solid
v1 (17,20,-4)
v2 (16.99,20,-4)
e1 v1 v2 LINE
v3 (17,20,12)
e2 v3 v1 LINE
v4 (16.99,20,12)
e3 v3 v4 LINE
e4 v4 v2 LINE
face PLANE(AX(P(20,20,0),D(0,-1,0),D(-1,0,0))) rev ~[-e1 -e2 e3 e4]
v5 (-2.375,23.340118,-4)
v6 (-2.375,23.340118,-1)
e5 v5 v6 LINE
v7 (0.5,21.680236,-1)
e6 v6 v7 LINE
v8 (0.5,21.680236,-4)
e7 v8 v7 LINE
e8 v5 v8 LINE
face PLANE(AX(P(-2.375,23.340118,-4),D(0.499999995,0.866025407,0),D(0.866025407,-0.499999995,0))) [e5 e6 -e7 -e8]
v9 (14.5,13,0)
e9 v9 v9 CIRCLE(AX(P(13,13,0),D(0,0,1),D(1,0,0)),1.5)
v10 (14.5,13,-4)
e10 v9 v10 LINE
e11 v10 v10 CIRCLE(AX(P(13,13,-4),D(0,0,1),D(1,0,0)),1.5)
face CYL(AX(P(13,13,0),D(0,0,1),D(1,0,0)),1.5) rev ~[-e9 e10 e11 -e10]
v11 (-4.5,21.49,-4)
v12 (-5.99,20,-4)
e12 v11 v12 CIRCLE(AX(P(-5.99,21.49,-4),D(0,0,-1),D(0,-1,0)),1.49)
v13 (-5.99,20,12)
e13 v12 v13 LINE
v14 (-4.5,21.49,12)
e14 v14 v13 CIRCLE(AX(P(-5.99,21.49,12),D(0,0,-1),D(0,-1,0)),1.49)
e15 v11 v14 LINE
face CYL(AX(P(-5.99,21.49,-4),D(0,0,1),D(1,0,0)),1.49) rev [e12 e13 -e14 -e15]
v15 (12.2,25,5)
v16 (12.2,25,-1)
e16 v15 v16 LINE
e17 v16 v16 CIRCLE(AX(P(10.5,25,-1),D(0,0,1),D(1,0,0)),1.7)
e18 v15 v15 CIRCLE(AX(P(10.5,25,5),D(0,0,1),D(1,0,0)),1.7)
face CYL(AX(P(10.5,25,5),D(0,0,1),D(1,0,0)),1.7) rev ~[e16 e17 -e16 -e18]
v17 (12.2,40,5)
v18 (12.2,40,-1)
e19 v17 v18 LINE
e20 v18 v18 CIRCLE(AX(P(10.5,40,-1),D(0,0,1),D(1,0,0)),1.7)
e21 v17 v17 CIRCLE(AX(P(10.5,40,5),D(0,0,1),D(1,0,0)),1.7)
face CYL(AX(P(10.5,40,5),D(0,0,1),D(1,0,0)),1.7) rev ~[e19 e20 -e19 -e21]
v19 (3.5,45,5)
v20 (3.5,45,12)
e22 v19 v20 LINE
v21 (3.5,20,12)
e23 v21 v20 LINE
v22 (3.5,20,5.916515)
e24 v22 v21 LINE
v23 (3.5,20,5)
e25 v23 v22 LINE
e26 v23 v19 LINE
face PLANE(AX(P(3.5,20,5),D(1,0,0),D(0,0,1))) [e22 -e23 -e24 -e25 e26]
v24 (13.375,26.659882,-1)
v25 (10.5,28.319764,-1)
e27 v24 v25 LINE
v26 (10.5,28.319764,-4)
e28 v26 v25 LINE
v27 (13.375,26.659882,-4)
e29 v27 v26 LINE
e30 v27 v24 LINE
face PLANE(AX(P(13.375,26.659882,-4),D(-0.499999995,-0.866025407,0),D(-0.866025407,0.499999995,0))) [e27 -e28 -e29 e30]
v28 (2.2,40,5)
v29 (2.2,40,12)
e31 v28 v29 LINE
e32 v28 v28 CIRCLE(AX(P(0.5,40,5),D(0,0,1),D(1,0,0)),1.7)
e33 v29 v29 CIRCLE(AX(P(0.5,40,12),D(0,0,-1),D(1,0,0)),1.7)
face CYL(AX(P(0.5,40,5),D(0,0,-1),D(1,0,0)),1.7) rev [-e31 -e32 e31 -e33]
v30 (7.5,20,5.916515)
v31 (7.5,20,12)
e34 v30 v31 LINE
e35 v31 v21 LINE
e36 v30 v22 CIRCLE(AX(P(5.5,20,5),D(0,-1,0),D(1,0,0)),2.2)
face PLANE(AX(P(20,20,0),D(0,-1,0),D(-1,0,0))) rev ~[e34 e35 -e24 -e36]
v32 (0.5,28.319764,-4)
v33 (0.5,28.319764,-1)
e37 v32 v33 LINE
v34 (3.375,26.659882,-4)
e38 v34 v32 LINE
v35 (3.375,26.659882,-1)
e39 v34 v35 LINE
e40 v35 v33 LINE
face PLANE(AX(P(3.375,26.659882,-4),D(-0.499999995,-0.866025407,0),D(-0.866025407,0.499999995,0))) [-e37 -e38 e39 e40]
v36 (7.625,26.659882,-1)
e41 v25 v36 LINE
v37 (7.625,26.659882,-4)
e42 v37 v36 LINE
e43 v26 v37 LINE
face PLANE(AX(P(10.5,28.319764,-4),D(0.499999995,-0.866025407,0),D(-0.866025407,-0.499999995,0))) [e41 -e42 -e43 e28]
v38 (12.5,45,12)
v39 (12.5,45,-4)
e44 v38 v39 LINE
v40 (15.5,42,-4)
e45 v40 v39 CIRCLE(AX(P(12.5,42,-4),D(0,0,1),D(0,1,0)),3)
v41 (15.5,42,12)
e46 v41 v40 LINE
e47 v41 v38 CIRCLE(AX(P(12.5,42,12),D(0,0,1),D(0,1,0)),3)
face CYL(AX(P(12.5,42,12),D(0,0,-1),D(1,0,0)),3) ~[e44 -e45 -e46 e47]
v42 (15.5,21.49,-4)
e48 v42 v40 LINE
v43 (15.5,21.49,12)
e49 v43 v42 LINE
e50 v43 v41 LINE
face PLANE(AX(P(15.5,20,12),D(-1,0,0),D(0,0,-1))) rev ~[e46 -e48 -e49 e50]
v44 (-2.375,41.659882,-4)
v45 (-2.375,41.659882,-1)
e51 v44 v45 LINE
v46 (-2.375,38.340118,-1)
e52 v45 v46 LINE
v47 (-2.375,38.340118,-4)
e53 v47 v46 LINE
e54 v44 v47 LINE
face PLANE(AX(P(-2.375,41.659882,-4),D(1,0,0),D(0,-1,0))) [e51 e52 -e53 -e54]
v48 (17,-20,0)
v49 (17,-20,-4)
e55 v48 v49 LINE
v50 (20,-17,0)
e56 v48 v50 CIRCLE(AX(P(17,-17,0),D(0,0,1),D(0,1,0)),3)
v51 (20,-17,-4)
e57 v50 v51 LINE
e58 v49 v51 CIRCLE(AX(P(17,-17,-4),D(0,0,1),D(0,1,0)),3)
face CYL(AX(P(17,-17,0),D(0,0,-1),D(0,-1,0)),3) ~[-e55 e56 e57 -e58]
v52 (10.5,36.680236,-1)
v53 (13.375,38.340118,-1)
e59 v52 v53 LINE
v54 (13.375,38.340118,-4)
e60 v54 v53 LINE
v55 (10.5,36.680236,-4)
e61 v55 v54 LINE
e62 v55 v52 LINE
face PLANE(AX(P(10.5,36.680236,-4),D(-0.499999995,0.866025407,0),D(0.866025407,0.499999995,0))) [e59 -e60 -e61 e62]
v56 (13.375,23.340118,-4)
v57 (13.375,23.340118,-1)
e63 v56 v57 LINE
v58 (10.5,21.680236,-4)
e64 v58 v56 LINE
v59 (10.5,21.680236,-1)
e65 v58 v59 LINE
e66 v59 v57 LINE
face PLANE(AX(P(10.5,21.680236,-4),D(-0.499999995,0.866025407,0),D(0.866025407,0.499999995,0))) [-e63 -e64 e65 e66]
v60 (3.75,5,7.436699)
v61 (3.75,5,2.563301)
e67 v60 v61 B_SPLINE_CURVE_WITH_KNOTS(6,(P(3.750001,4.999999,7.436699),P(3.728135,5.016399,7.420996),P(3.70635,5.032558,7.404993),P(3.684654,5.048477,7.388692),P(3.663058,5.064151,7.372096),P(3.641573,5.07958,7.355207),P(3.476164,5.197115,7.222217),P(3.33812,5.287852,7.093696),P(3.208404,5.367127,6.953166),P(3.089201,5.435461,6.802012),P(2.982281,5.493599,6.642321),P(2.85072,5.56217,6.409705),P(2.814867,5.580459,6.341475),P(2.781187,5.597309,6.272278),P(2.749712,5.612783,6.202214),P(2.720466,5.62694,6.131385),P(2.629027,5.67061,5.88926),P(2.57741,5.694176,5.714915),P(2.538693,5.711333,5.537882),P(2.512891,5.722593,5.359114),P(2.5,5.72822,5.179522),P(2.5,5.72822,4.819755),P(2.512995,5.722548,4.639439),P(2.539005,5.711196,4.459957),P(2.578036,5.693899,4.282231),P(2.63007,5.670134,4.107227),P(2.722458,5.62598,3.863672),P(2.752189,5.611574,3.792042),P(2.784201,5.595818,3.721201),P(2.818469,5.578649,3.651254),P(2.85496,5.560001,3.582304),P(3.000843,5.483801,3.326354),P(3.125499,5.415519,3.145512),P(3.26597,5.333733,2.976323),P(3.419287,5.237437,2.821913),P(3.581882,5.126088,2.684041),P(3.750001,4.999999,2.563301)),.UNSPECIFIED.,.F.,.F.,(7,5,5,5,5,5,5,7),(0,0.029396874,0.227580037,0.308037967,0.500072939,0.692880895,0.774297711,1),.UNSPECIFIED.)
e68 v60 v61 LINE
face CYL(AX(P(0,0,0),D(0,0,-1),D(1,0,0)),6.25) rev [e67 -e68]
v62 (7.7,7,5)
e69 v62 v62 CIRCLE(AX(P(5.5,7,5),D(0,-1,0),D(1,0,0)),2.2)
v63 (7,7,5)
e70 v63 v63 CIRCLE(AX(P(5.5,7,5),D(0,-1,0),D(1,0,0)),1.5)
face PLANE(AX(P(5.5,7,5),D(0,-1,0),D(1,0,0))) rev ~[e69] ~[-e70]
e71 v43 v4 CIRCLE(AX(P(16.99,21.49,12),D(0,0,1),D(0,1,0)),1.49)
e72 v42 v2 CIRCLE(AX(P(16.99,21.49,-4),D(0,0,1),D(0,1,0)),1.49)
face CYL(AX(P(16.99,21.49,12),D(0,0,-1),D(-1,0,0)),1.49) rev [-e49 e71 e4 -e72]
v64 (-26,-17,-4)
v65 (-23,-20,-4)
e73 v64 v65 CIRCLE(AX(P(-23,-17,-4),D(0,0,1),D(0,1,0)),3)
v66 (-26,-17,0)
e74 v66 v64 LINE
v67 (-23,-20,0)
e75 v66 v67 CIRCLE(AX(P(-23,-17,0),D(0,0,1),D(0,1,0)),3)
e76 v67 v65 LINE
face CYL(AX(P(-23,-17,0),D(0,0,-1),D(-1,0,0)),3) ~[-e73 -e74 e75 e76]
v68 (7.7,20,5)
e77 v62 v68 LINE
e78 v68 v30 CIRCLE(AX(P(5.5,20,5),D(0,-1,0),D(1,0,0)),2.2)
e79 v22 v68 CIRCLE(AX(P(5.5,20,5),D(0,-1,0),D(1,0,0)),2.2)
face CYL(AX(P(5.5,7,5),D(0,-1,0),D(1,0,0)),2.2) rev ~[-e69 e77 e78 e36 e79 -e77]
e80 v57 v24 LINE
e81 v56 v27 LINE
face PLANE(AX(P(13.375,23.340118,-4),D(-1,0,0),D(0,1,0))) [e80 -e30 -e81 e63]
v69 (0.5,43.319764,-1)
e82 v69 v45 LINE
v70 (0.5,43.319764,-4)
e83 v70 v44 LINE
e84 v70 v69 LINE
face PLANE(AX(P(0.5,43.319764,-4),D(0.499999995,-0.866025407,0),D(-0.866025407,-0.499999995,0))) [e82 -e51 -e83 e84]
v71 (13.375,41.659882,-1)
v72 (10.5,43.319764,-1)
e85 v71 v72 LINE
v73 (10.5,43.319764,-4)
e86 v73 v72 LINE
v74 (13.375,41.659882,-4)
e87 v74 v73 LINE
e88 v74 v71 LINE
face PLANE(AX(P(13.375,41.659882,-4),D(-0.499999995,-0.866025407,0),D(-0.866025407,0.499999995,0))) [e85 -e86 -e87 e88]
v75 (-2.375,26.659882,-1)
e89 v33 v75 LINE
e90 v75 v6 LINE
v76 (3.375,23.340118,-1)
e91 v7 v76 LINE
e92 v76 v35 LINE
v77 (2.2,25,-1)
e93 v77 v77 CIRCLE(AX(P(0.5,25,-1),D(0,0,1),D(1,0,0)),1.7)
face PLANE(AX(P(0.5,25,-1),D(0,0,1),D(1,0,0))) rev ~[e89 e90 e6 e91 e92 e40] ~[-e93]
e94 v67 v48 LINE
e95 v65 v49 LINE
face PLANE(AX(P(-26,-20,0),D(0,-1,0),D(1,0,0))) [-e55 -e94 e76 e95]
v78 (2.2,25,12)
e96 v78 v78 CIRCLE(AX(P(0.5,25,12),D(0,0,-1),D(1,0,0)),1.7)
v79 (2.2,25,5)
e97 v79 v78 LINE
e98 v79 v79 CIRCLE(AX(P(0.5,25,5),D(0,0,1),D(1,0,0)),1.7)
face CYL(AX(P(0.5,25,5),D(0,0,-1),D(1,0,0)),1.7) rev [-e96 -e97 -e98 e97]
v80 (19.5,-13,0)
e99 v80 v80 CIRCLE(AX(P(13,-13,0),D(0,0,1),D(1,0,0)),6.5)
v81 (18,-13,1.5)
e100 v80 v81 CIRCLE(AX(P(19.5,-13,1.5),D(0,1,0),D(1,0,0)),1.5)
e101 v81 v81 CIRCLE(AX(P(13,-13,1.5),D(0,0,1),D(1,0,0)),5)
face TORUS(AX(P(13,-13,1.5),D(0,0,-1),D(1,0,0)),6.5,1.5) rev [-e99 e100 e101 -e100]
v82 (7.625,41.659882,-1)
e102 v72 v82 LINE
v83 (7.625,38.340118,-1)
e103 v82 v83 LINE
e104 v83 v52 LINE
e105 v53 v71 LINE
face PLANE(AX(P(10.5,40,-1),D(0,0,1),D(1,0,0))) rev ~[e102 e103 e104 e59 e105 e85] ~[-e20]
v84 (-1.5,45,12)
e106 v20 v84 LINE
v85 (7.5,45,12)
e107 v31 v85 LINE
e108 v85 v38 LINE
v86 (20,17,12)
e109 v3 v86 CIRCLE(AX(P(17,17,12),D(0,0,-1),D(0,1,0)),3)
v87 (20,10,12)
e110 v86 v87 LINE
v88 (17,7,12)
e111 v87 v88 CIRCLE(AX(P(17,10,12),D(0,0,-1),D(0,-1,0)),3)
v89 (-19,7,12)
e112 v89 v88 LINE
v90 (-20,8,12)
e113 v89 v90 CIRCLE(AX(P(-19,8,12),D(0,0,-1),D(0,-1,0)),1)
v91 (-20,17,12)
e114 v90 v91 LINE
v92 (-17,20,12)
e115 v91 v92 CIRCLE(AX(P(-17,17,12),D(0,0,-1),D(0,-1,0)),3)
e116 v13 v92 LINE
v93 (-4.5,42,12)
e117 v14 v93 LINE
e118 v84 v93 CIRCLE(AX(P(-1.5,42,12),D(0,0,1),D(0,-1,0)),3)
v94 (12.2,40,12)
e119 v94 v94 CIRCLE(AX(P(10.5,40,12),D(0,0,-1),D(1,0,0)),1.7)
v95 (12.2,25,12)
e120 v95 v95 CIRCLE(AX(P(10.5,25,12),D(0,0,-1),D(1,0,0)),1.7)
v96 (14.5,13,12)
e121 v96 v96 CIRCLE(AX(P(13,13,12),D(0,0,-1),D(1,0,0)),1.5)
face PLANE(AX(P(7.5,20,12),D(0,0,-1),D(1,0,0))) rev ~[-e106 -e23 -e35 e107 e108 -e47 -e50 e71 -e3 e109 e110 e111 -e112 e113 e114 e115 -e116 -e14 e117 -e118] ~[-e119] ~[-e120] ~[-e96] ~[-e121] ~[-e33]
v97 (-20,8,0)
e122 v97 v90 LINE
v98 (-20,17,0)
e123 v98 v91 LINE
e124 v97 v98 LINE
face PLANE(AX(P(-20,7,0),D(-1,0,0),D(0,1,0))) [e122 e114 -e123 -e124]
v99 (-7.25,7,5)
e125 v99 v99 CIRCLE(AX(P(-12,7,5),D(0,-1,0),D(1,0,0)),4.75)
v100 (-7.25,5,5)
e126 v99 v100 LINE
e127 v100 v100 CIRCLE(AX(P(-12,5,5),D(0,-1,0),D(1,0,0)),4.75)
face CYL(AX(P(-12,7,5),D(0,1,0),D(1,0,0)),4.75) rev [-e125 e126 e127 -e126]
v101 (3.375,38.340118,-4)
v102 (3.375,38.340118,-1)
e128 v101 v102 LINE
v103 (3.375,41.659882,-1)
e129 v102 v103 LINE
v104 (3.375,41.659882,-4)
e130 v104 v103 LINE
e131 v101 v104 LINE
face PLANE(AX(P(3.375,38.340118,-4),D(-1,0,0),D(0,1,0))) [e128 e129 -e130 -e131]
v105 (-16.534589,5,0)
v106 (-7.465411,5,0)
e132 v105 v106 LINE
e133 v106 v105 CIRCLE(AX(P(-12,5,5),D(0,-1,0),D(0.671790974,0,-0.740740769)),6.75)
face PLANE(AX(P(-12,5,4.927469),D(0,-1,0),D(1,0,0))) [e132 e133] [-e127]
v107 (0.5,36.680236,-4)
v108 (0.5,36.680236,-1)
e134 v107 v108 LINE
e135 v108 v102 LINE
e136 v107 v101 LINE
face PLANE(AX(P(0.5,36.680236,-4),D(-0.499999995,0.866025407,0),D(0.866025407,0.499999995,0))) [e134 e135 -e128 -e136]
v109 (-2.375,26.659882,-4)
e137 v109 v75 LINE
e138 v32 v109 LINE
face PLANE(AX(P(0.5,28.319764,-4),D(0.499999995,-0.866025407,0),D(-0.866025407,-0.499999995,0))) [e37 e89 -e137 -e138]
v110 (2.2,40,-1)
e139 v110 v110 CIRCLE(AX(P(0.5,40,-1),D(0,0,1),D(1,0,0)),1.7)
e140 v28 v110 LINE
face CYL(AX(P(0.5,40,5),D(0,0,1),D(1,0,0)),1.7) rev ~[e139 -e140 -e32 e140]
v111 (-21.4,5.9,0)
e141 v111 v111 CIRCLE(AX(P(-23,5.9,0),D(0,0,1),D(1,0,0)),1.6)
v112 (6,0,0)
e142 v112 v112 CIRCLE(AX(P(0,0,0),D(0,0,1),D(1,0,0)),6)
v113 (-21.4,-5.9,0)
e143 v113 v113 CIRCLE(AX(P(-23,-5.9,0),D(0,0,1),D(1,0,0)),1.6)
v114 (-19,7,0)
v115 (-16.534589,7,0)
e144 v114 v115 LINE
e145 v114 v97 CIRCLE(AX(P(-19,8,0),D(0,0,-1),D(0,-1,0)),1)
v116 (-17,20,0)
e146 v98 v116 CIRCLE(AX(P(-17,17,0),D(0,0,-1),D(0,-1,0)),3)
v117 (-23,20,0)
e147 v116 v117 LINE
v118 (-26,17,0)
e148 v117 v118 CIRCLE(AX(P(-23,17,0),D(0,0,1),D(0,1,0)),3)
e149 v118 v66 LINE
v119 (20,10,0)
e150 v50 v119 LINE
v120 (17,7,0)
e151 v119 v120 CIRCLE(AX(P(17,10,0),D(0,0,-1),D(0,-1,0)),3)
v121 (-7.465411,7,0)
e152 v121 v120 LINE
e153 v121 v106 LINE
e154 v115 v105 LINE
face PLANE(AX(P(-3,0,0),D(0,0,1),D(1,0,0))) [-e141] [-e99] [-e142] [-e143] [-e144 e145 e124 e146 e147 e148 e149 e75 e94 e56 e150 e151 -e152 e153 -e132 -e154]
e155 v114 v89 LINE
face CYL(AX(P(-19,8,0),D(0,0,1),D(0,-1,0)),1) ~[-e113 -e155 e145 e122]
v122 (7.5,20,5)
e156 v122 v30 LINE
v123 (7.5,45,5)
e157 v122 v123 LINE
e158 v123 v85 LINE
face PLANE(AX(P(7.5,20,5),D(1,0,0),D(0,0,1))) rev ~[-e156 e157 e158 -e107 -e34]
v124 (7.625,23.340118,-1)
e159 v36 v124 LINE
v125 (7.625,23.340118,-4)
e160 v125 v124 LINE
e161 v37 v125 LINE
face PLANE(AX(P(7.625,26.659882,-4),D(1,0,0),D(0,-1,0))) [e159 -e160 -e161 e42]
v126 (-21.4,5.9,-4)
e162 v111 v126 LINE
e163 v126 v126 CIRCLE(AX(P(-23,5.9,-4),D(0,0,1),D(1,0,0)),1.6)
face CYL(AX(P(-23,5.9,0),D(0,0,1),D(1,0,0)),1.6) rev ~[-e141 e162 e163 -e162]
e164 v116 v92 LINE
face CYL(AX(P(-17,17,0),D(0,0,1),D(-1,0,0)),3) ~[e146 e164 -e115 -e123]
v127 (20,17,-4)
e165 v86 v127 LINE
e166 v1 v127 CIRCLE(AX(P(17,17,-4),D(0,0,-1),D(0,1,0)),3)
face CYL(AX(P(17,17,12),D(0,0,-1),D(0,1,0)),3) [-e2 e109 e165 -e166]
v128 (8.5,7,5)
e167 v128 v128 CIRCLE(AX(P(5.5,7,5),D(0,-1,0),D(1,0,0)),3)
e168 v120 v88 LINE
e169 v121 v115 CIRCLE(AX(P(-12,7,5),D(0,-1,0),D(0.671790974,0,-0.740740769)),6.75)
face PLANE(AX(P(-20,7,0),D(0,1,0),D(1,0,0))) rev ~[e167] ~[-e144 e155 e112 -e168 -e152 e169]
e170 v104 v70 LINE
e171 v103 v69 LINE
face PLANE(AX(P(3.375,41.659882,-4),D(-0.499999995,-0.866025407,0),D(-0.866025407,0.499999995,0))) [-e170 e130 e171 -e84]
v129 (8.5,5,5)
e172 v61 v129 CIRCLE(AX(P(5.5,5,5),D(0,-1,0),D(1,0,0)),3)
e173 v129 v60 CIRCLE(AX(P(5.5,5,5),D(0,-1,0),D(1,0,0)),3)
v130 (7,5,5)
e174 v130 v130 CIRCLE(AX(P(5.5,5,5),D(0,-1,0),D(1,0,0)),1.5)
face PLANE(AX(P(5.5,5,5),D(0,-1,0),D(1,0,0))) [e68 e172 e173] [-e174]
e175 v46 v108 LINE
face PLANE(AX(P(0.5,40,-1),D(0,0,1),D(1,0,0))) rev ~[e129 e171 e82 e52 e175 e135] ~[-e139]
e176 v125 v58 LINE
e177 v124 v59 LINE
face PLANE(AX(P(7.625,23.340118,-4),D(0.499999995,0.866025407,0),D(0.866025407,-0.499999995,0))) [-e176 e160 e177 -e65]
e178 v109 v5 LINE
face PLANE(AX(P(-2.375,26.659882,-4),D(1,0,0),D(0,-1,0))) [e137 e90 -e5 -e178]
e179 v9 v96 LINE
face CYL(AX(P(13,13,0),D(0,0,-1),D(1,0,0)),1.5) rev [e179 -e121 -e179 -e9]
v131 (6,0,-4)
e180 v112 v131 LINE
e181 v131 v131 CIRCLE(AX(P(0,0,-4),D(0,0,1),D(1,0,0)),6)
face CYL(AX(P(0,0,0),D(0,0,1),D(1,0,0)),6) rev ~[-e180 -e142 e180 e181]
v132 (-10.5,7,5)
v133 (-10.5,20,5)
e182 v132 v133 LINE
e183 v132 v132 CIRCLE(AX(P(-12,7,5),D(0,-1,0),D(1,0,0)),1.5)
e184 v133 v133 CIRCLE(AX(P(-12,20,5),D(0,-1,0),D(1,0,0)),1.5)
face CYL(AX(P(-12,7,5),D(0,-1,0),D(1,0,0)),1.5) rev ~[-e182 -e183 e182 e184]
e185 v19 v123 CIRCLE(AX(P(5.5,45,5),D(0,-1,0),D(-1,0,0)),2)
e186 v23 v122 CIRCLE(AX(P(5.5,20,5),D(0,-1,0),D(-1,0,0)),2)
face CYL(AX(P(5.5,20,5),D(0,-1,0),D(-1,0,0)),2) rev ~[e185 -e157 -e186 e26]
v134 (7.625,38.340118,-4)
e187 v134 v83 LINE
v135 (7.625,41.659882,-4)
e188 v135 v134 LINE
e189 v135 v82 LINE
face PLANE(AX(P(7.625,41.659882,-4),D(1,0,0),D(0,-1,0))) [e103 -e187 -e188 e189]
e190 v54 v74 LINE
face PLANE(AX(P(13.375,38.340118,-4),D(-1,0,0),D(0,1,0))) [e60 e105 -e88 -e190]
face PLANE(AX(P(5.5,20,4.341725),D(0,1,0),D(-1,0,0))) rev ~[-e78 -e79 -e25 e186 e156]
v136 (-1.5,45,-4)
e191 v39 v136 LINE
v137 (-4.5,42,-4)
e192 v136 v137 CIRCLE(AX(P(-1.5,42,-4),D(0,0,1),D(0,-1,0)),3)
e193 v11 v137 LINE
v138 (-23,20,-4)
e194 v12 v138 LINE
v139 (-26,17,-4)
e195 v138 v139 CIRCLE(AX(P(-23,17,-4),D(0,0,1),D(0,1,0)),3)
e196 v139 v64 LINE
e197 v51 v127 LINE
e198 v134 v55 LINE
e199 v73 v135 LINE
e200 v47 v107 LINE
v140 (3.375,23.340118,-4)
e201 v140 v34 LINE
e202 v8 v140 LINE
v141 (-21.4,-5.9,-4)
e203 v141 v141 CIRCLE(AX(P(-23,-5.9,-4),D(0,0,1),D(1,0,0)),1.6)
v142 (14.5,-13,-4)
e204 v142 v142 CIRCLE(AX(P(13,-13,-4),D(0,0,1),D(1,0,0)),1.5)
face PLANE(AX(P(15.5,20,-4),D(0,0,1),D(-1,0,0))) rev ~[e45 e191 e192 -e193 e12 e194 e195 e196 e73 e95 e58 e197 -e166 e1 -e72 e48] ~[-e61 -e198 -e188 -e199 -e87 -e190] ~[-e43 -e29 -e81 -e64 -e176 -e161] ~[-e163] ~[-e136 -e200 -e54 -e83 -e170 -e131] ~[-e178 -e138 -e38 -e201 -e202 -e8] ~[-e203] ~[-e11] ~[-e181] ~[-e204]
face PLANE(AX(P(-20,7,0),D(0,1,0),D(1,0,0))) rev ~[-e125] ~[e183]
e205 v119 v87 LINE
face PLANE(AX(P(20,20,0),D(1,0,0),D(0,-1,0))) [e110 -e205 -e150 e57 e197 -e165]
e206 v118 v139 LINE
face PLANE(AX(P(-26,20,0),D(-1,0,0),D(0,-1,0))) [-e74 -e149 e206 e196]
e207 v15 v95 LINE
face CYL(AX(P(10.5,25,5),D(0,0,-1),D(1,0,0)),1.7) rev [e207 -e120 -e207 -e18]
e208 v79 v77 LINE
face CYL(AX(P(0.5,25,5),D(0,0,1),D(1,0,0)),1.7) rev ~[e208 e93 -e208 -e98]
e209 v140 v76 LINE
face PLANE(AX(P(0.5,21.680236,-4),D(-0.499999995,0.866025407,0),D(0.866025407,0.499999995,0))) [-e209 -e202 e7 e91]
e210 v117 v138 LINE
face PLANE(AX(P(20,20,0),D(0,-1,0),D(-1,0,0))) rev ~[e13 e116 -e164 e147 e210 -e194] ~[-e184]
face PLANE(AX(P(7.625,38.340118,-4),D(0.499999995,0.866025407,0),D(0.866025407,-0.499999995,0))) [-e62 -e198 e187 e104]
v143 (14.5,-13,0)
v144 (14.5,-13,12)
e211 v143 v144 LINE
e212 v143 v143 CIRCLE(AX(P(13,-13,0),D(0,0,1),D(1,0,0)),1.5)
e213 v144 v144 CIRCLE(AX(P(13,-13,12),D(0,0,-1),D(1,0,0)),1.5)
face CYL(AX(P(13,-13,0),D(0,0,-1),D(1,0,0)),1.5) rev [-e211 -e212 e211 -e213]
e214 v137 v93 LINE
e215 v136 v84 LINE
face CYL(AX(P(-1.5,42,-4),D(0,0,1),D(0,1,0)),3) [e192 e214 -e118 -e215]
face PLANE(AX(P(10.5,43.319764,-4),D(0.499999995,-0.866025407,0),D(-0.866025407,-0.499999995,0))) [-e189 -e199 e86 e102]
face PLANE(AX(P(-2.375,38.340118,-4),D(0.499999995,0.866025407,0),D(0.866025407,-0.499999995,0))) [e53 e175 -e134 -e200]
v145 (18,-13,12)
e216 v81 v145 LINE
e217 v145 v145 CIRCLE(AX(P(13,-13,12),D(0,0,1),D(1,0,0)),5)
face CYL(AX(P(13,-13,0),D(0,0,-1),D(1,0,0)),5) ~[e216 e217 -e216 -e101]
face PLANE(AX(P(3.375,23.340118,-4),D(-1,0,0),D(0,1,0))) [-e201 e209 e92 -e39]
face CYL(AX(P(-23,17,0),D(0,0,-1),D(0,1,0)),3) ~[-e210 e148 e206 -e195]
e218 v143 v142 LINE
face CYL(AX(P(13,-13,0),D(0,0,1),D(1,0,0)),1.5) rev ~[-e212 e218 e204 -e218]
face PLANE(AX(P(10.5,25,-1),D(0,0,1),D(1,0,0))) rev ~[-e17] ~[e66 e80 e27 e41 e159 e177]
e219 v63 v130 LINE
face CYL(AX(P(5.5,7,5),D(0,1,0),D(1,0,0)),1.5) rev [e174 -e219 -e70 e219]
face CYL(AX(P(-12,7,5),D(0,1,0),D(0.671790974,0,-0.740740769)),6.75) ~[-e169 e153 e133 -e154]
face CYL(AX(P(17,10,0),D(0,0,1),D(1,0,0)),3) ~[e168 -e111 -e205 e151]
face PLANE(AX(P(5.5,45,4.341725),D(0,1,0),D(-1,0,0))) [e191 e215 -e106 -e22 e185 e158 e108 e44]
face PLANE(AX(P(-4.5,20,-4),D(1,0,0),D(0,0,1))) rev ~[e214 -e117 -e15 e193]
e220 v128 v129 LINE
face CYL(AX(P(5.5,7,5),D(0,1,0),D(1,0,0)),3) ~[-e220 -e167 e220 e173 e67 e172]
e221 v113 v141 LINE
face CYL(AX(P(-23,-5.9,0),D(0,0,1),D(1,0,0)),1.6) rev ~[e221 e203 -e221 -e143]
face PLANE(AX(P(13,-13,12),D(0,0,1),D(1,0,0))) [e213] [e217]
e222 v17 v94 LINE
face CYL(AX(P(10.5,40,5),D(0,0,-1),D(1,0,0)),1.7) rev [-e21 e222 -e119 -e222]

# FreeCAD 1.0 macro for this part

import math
import FreeCAD as App
import Part
import Sketcher
from FreeCAD import Vector
Q = App.Units.Quantity


def edges_at(feature, points):
    """Names of the edges that pass closest to the given points."""
    edges = feature.Shape.Edges
    near = lambda p: min(range(len(edges)), key=lambda i: edges[i].distToShape(Part.Vertex(*p))[0])
    return sorted({f"Edge{near(p) + 1}" for p in points})

doc = App.newDocument("Part")
body = doc.addObject("PartDesign::Body", "Body")

sketch1 = body.newObject("Sketcher::SketchObject", "Sketch")
sketch1.AttachmentSupport = (doc.getObject("XZ_Plane"), [""])
sketch1.MapMode = "FlatFace"
sketch1.addGeometry(Part.LineSegment(Vector(10, -9, 0), Vector(10, 7, 0)), False)
sketch1.addGeometry(Part.LineSegment(Vector(10, 7, 0), Vector(2, 7, 0)), False)
sketch1.addGeometry(Part.LineSegment(Vector(2, 7, 0), Vector(2, 0, 0)), False)
sketch1.addGeometry(Part.ArcOfCircle(Part.Circle(Vector(0, 0, 0), Vector(0, 0, 1), 2), math.radians(180), math.radians(360)), False)
sketch1.addGeometry(Part.LineSegment(Vector(-2, 0, 0), Vector(-2, 7, 0)), False)
sketch1.addGeometry(Part.LineSegment(Vector(-2, 7, 0), Vector(-10, 7, 0)), False)
sketch1.addGeometry(Part.LineSegment(Vector(-10, 7, 0), Vector(-10, -9, 0)), False)
sketch1.addGeometry(Part.LineSegment(Vector(-10, -9, 0), Vector(10, -9, 0)), False)
sketch1.addConstraint(Sketcher.Constraint("Coincident", 0, 2, 1, 1))
sketch1.addConstraint(Sketcher.Constraint("Coincident", 1, 2, 2, 1))
sketch1.addConstraint(Sketcher.Constraint("Tangent", 2, 2, 3, 2))
sketch1.addConstraint(Sketcher.Constraint("Tangent", 3, 1, 4, 1))
sketch1.addConstraint(Sketcher.Constraint("Coincident", 4, 2, 5, 1))
sketch1.addConstraint(Sketcher.Constraint("Coincident", 5, 2, 6, 1))
sketch1.addConstraint(Sketcher.Constraint("Coincident", 6, 2, 7, 1))
sketch1.addConstraint(Sketcher.Constraint("Coincident", 7, 2, 0, 1))
sketch1.addConstraint(Sketcher.Constraint("Vertical", 0))
sketch1.addConstraint(Sketcher.Constraint("Horizontal", 1))
sketch1.addConstraint(Sketcher.Constraint("Vertical", 2))
sketch1.addConstraint(Sketcher.Constraint("Vertical", 4))
sketch1.addConstraint(Sketcher.Constraint("Horizontal", 5))
sketch1.addConstraint(Sketcher.Constraint("Vertical", 6))
sketch1.addConstraint(Sketcher.Constraint("Horizontal", 7))
sketch1.addConstraint(Sketcher.Constraint("Coincident", 3, 3, -1, 1))
sketch1.addConstraint(Sketcher.Constraint("Symmetric", 0, 2, 5, 2, -2))
sketch1.addConstraint(Sketcher.Constraint("Radius", 3, 2.0))
sketch1.addConstraint(Sketcher.Constraint("DistanceX", 1, 2, 1, 1, 8.0))
sketch1.addConstraint(Sketcher.Constraint("DistanceY", 0, 1, 0, 2, 16.0))
sketch1.addConstraint(Sketcher.Constraint("DistanceY", 2, 2, 2, 1, 7.0))
pad1 = body.newObject("PartDesign::Pad", "Pad")
pad1.Profile = sketch1
pad1.Length = 25
pad1.Reversed = True

sketch2 = body.newObject("Sketcher::SketchObject", "Sketch001")
sketch2.AttachmentSupport = (doc.getObject("XY_Plane"), [""])
sketch2.MapMode = "FlatFace"
sketch2.addGeometry(Part.Circle(Vector(-5, 5, 0), Vector(0, 0, 1), 1.7), False)
sketch2.addGeometry(Part.Circle(Vector(5, 5, 0), Vector(0, 0, 1), 1.7), False)
sketch2.addGeometry(Part.Circle(Vector(-5, 20, 0), Vector(0, 0, 1), 1.7), False)
sketch2.addGeometry(Part.Circle(Vector(5, 20, 0), Vector(0, 0, 1), 1.7), False)
sketch2.addConstraint(Sketcher.Constraint("Equal", 0, 1))
sketch2.addConstraint(Sketcher.Constraint("Equal", 1, 2))
sketch2.addConstraint(Sketcher.Constraint("Equal", 2, 3))
sketch2.addConstraint(Sketcher.Constraint("Symmetric", 0, 3, 1, 3, -2))
sketch2.addConstraint(Sketcher.Constraint("Symmetric", 2, 3, 3, 3, -2))
sketch2.addConstraint(Sketcher.Constraint("Vertical", 0, 3, 2, 3))
sketch2.addConstraint(Sketcher.Constraint("Diameter", 0, 3.4))
sketch2.addConstraint(Sketcher.Constraint("DistanceX", 0, 3, -1, 1, 5.0))
sketch2.addConstraint(Sketcher.Constraint("DistanceY", -1, 1, 0, 3, 5.0))
sketch2.addConstraint(Sketcher.Constraint("DistanceY", -1, 1, 2, 3, 20.0))
pocket1 = body.newObject("PartDesign::Pocket", "Pocket")
pocket1.Profile = sketch2
pocket1.Type = "ThroughAll"
pocket1.Midplane = True

sketch3 = body.newObject("Sketcher::SketchObject", "Sketch002")
sketch3.AttachmentSupport = (doc.getObject("XY_Plane"), [""])
sketch3.MapMode = "FlatFace"
sketch3.AttachmentOffset = App.Placement(Vector(0, 0, -9), App.Rotation())
sketch3.addGeometry(Part.LineSegment(Vector(-2.1, 3.3, 0), Vector(-2.1, 6.7, 0)), False)
sketch3.addGeometry(Part.LineSegment(Vector(-2.1, 6.7, 0), Vector(-5, 8.3, 0)), False)
sketch3.addGeometry(Part.LineSegment(Vector(-5, 8.3, 0), Vector(-7.9, 6.7, 0)), False)
sketch3.addGeometry(Part.LineSegment(Vector(-7.9, 6.7, 0), Vector(-7.9, 3.3, 0)), False)
sketch3.addGeometry(Part.LineSegment(Vector(-7.9, 3.3, 0), Vector(-5, 1.7, 0)), False)
sketch3.addGeometry(Part.LineSegment(Vector(-5, 1.7, 0), Vector(-2.1, 3.3, 0)), False)
sketch3.addGeometry(Part.LineSegment(Vector(7.9, 3.3, 0), Vector(7.9, 6.7, 0)), False)
sketch3.addGeometry(Part.LineSegment(Vector(7.9, 6.7, 0), Vector(5, 8.3, 0)), False)
sketch3.addGeometry(Part.LineSegment(Vector(5, 8.3, 0), Vector(2.1, 6.7, 0)), False)
sketch3.addGeometry(Part.LineSegment(Vector(2.1, 6.7, 0), Vector(2.1, 3.3, 0)), False)
sketch3.addGeometry(Part.LineSegment(Vector(2.1, 3.3, 0), Vector(5, 1.7, 0)), False)
sketch3.addGeometry(Part.LineSegment(Vector(5, 1.7, 0), Vector(7.9, 3.3, 0)), False)
sketch3.addGeometry(Part.LineSegment(Vector(-2.1, 18.3, 0), Vector(-2.1, 21.7, 0)), False)
sketch3.addGeometry(Part.LineSegment(Vector(-2.1, 21.7, 0), Vector(-5, 23.3, 0)), False)
sketch3.addGeometry(Part.LineSegment(Vector(-5, 23.3, 0), Vector(-7.9, 21.7, 0)), False)
sketch3.addGeometry(Part.LineSegment(Vector(-7.9, 21.7, 0), Vector(-7.9, 18.3, 0)), False)
sketch3.addGeometry(Part.LineSegment(Vector(-7.9, 18.3, 0), Vector(-5, 16.7, 0)), False)
sketch3.addGeometry(Part.LineSegment(Vector(-5, 16.7, 0), Vector(-2.1, 18.3, 0)), False)
sketch3.addGeometry(Part.LineSegment(Vector(7.9, 18.3, 0), Vector(7.9, 21.7, 0)), False)
sketch3.addGeometry(Part.LineSegment(Vector(7.9, 21.7, 0), Vector(5, 23.3, 0)), False)
sketch3.addGeometry(Part.LineSegment(Vector(5, 23.3, 0), Vector(2.1, 21.7, 0)), False)
sketch3.addGeometry(Part.LineSegment(Vector(2.1, 21.7, 0), Vector(2.1, 18.3, 0)), False)
sketch3.addGeometry(Part.LineSegment(Vector(2.1, 18.3, 0), Vector(5, 16.7, 0)), False)
sketch3.addGeometry(Part.LineSegment(Vector(5, 16.7, 0), Vector(7.9, 18.3, 0)), False)
sketch3.addConstraint(Sketcher.Constraint("Coincident", 0, 2, 1, 1))
sketch3.addConstraint(Sketcher.Constraint("Coincident", 1, 2, 2, 1))
sketch3.addConstraint(Sketcher.Constraint("Coincident", 2, 2, 3, 1))
sketch3.addConstraint(Sketcher.Constraint("Coincident", 3, 2, 4, 1))
sketch3.addConstraint(Sketcher.Constraint("Coincident", 4, 2, 5, 1))
sketch3.addConstraint(Sketcher.Constraint("Coincident", 5, 2, 0, 1))
sketch3.addConstraint(Sketcher.Constraint("Coincident", 6, 2, 7, 1))
sketch3.addConstraint(Sketcher.Constraint("Coincident", 7, 2, 8, 1))
sketch3.addConstraint(Sketcher.Constraint("Coincident", 8, 2, 9, 1))
sketch3.addConstraint(Sketcher.Constraint("Coincident", 9, 2, 10, 1))
sketch3.addConstraint(Sketcher.Constraint("Coincident", 10, 2, 11, 1))
sketch3.addConstraint(Sketcher.Constraint("Coincident", 11, 2, 6, 1))
sketch3.addConstraint(Sketcher.Constraint("Coincident", 12, 2, 13, 1))
sketch3.addConstraint(Sketcher.Constraint("Coincident", 13, 2, 14, 1))
sketch3.addConstraint(Sketcher.Constraint("Coincident", 14, 2, 15, 1))
sketch3.addConstraint(Sketcher.Constraint("Coincident", 15, 2, 16, 1))
sketch3.addConstraint(Sketcher.Constraint("Coincident", 16, 2, 17, 1))
sketch3.addConstraint(Sketcher.Constraint("Coincident", 17, 2, 12, 1))
sketch3.addConstraint(Sketcher.Constraint("Coincident", 18, 2, 19, 1))
sketch3.addConstraint(Sketcher.Constraint("Coincident", 19, 2, 20, 1))
sketch3.addConstraint(Sketcher.Constraint("Coincident", 20, 2, 21, 1))
sketch3.addConstraint(Sketcher.Constraint("Coincident", 21, 2, 22, 1))
sketch3.addConstraint(Sketcher.Constraint("Coincident", 22, 2, 23, 1))
sketch3.addConstraint(Sketcher.Constraint("Coincident", 23, 2, 18, 1))
sketch3.addConstraint(Sketcher.Constraint("Vertical", 0))
sketch3.addConstraint(Sketcher.Constraint("Vertical", 3))
sketch3.addConstraint(Sketcher.Constraint("Vertical", 6))
sketch3.addConstraint(Sketcher.Constraint("Vertical", 9))
sketch3.addConstraint(Sketcher.Constraint("Vertical", 12))
sketch3.addConstraint(Sketcher.Constraint("Vertical", 15))
sketch3.addConstraint(Sketcher.Constraint("Vertical", 18))
sketch3.addConstraint(Sketcher.Constraint("Vertical", 21))
sketch3.addConstraint(Sketcher.Constraint("Symmetric", 2, 2, 6, 2, -2))
sketch3.addConstraint(Sketcher.Constraint("Symmetric", 1, 2, 7, 2, -2))
sketch3.addConstraint(Sketcher.Constraint("Symmetric", 0, 2, 8, 2, -2))
sketch3.addConstraint(Sketcher.Constraint("Symmetric", 4, 2, 10, 2, -2))
sketch3.addConstraint(Sketcher.Constraint("Symmetric", 14, 2, 18, 2, -2))
sketch3.addConstraint(Sketcher.Constraint("Symmetric", 13, 2, 19, 2, -2))
sketch3.addConstraint(Sketcher.Constraint("Symmetric", 12, 2, 20, 2, -2))
sketch3.addConstraint(Sketcher.Constraint("Symmetric", 16, 2, 22, 2, -2))
sketch3.addConstraint(Sketcher.Constraint("Parallel", 1, 4))
sketch3.addConstraint(Sketcher.Constraint("Parallel", 2, 5))
sketch3.addConstraint(Sketcher.Constraint("Parallel", 4, 7))
sketch3.addConstraint(Sketcher.Constraint("Parallel", 7, 10))
sketch3.addConstraint(Sketcher.Constraint("Parallel", 8, 11))
sketch3.addConstraint(Sketcher.Constraint("Parallel", 10, 13))
sketch3.addConstraint(Sketcher.Constraint("Parallel", 11, 14))
sketch3.addConstraint(Sketcher.Constraint("Parallel", 13, 16))
sketch3.addConstraint(Sketcher.Constraint("Parallel", 14, 17))
sketch3.addConstraint(Sketcher.Constraint("Parallel", 19, 22))
sketch3.addConstraint(Sketcher.Constraint("Parallel", 20, 23))
sketch3.addConstraint(Sketcher.Constraint("Horizontal", 0, 2, 2, 2))
sketch3.addConstraint(Sketcher.Constraint("Horizontal", 3, 2, 5, 2))
sketch3.addConstraint(Sketcher.Constraint("Horizontal", 12, 2, 14, 2))
sketch3.addConstraint(Sketcher.Constraint("Horizontal", 15, 2, 17, 2))
sketch3.addConstraint(Sketcher.Constraint("Vertical", 5, 2, 12, 2))
sketch3.addConstraint(Sketcher.Constraint("Vertical", 4, 2, 13, 2))
sketch3.addConstraint(Sketcher.Constraint("Equal", 9, 12))
sketch3.addConstraint(Sketcher.Constraint("Angle", 1, Q("150 deg")))
sketch3.addConstraint(Sketcher.Constraint("DistanceX", 1, 2, -1, 1, 5.0))
sketch3.addConstraint(Sketcher.Constraint("DistanceY", 0, 2, 12, 2, 15.0))
sketch3.addConstraint(Sketcher.Constraint("DistanceX", 2, 2, 0, 2, 5.75))
sketch3.addConstraint(Sketcher.Constraint("DistanceY", 0, 1, 0, 2, 3.319764))
sketch3.addConstraint(Sketcher.Constraint("DistanceY", -1, 1, 0, 2, 6.659882))
pocket2 = body.newObject("PartDesign::Pocket", "Pocket001")
pocket2.Profile = sketch3
pocket2.Length = 3
pocket2.Reversed = True
body2 = doc.addObject("PartDesign::Body", "Body001")
doc.recompute()

body.Placement = App.Placement(Vector(5.5, 20, 5), App.Rotation(Vector(0, 0, 1), 0))
boolean = body2.newObject("PartDesign::Boolean", "Boolean")
boolean.Type = "Fuse"
boolean.addObjects([body])
body3 = doc.addObject("PartDesign::Body", "Body002")

sketch4 = body3.newObject("Sketcher::SketchObject", "Sketch003")
sketch4.AttachmentSupport = (doc.getObject("XY_Plane002"), [""])
sketch4.MapMode = "FlatFace"
sketch4.addGeometry(Part.LineSegment(Vector(-26, 20, 0), Vector(-26, -20, 0)), False)
sketch4.addGeometry(Part.LineSegment(Vector(-26, -20, 0), Vector(20, -20, 0)), False)
sketch4.addGeometry(Part.LineSegment(Vector(20, -20, 0), Vector(20, 20, 0)), False)
sketch4.addGeometry(Part.LineSegment(Vector(20, 20, 0), Vector(-26, 20, 0)), False)
sketch4.addGeometry(Part.Circle(Vector(-23, -5.9, 0), Vector(0, 0, 1), 1.6), False)
sketch4.addGeometry(Part.Circle(Vector(-23, 5.9, 0), Vector(0, 0, 1), 1.6), False)
sketch4.addGeometry(Part.Circle(Vector(0, 0, 0), Vector(0, 0, 1), 6), False)
sketch4.addConstraint(Sketcher.Constraint("Coincident", 0, 2, 1, 1))
sketch4.addConstraint(Sketcher.Constraint("Coincident", 1, 2, 2, 1))
sketch4.addConstraint(Sketcher.Constraint("Coincident", 2, 2, 3, 1))
sketch4.addConstraint(Sketcher.Constraint("Coincident", 3, 2, 0, 1))
sketch4.addConstraint(Sketcher.Constraint("Vertical", 0))
sketch4.addConstraint(Sketcher.Constraint("Horizontal", 1))
sketch4.addConstraint(Sketcher.Constraint("Vertical", 2))
sketch4.addConstraint(Sketcher.Constraint("Horizontal", 3))
sketch4.addConstraint(Sketcher.Constraint("Coincident", 6, 3, -1, 1))
sketch4.addConstraint(Sketcher.Constraint("Equal", 4, 5))
sketch4.addConstraint(Sketcher.Constraint("Symmetric", 4, 3, 5, 3, -1))
sketch4.addConstraint(Sketcher.Constraint("Diameter", 6, 12.0))
sketch4.addConstraint(Sketcher.Constraint("Diameter", 4, 3.2))
sketch4.addConstraint(Sketcher.Constraint("DistanceX", 1, 1, 1, 2, 46.0))
sketch4.addConstraint(Sketcher.Constraint("DistanceY", 0, 2, 0, 1, 40.0))
sketch4.addConstraint(Sketcher.Constraint("DistanceX", 4, 3, -1, 1, 23.0))
sketch4.addConstraint(Sketcher.Constraint("DistanceX", 0, 2, -1, 1, 26.0))
sketch4.addConstraint(Sketcher.Constraint("DistanceY", 0, 2, -1, 1, 20.0))
sketch4.addConstraint(Sketcher.Constraint("DistanceY", 4, 3, -1, 1, 5.9))
pad2 = body3.newObject("PartDesign::Pad", "Pad001")
pad2.Profile = sketch4
pad2.Length = 4
pad2.Reversed = True

sketch5 = body3.newObject("Sketcher::SketchObject", "Sketch004")
sketch5.AttachmentSupport = (doc.getObject("XY_Plane002"), [""])
sketch5.MapMode = "FlatFace"
sketch5.addGeometry(Part.Circle(Vector(13, -13, 0), Vector(0, 0, 1), 5), False)
sketch5.addGeometry(Part.LineSegment(Vector(20, 20, 0), Vector(-20, 20, 0)), False)
sketch5.addGeometry(Part.LineSegment(Vector(-20, 20, 0), Vector(-20, 7, 0)), False)
sketch5.addGeometry(Part.LineSegment(Vector(-20, 7, 0), Vector(20, 7, 0)), False)
sketch5.addGeometry(Part.LineSegment(Vector(20, 7, 0), Vector(20, 20, 0)), False)
sketch5.addConstraint(Sketcher.Constraint("Coincident", 1, 2, 2, 1))
sketch5.addConstraint(Sketcher.Constraint("Coincident", 2, 2, 3, 1))
sketch5.addConstraint(Sketcher.Constraint("Coincident", 3, 2, 4, 1))
sketch5.addConstraint(Sketcher.Constraint("Coincident", 4, 2, 1, 1))
sketch5.addConstraint(Sketcher.Constraint("Horizontal", 1))
sketch5.addConstraint(Sketcher.Constraint("Vertical", 2))
sketch5.addConstraint(Sketcher.Constraint("Horizontal", 3))
sketch5.addConstraint(Sketcher.Constraint("Vertical", 4))
sketch5.addConstraint(Sketcher.Constraint("Diameter", 0, 10.0))
sketch5.addConstraint(Sketcher.Constraint("DistanceX", 1, 2, 1, 1, 40.0))
sketch5.addConstraint(Sketcher.Constraint("DistanceY", 2, 2, 2, 1, 13.0))
sketch5.addConstraint(Sketcher.Constraint("DistanceX", -1, 1, 0, 3, 13.0))
sketch5.addConstraint(Sketcher.Constraint("DistanceY", 0, 3, -1, 1, 13.0))
sketch5.addConstraint(Sketcher.Constraint("DistanceX", 1, 2, -1, 1, 20.0))
sketch5.addConstraint(Sketcher.Constraint("DistanceY", -1, 1, 1, 2, 20.0))
pad3 = body3.newObject("PartDesign::Pad", "Pad002")
pad3.Profile = sketch5
pad3.Length = 12

sketch6 = body3.newObject("Sketcher::SketchObject", "Sketch005")
sketch6.AttachmentSupport = (doc.getObject("XZ_Plane002"), [""])
sketch6.MapMode = "FlatFace"
sketch6.AttachmentOffset = App.Placement(Vector(0, 0, -7), App.Rotation())
sketch6.addGeometry(Part.Circle(Vector(5.5, 5, 0), Vector(0, 0, 1), 2.2), False)
sketch6.addConstraint(Sketcher.Constraint("Diameter", 0, 4.4))
sketch6.addConstraint(Sketcher.Constraint("DistanceY", -1, 1, 0, 3, 5.0))
sketch6.addConstraint(Sketcher.Constraint("DistanceX", -1, 1, 0, 3, 5.5))
pocket3 = body3.newObject("PartDesign::Pocket", "Pocket002")
pocket3.Profile = sketch6
pocket3.Type = "ThroughAll"

sketch7 = body3.newObject("Sketcher::SketchObject", "Sketch006")
sketch7.AttachmentSupport = (doc.getObject("XZ_Plane002"), [""])
sketch7.MapMode = "FlatFace"
sketch7.AttachmentOffset = App.Placement(Vector(0, 0, -7), App.Rotation())
sketch7.addGeometry(Part.Circle(Vector(-12, 5, 0), Vector(0, 0, 1), 1.5), False)
sketch7.addConstraint(Sketcher.Constraint("Diameter", 0, 3.0))
sketch7.addConstraint(Sketcher.Constraint("DistanceX", 0, 3, -1, 1, 12.0))
sketch7.addConstraint(Sketcher.Constraint("DistanceY", -1, 1, 0, 3, 5.0))
pocket4 = body3.newObject("PartDesign::Pocket", "Pocket003")
pocket4.Profile = sketch7
pocket4.Type = "ThroughAll"

sketch8 = body3.newObject("Sketcher::SketchObject", "Sketch007")
sketch8.AttachmentSupport = (doc.getObject("XY_Plane002"), [""])
sketch8.MapMode = "FlatFace"
sketch8.addGeometry(Part.Circle(Vector(13, -13, 0), Vector(0, 0, 1), 1.5), False)
sketch8.addGeometry(Part.Circle(Vector(13, 13, 0), Vector(0, 0, 1), 1.5), False)
sketch8.addConstraint(Sketcher.Constraint("Equal", 0, 1))
sketch8.addConstraint(Sketcher.Constraint("Symmetric", 0, 3, 1, 3, -1))
sketch8.addConstraint(Sketcher.Constraint("Diameter", 0, 3.0))
sketch8.addConstraint(Sketcher.Constraint("DistanceX", -1, 1, 0, 3, 13.0))
sketch8.addConstraint(Sketcher.Constraint("DistanceY", 0, 3, -1, 1, 13.0))
pocket5 = body3.newObject("PartDesign::Pocket", "Pocket004")
pocket5.Profile = sketch8
pocket5.Type = "ThroughAll"
pocket5.Midplane = True

sketch9 = body3.newObject("Sketcher::SketchObject", "Sketch008")
sketch9.AttachmentSupport = (doc.getObject("XZ_Plane002"), [""])
sketch9.MapMode = "FlatFace"
sketch9.AttachmentOffset = App.Placement(Vector(0, 0, -7), App.Rotation())
sketch9.addGeometry(Part.Circle(Vector(5.5, 5, 0), Vector(0, 0, 1), 3), False)
sketch9.addGeometry(Part.Circle(Vector(5.5, 5, 0), Vector(0, 0, 1), 1.5), False)
sketch9.addConstraint(Sketcher.Constraint("Coincident", 1, 3, 0, 3))
sketch9.addConstraint(Sketcher.Constraint("Diameter", 0, 6.0))
sketch9.addConstraint(Sketcher.Constraint("Diameter", 1, 3.0))
sketch9.addConstraint(Sketcher.Constraint("DistanceY", -1, 1, 0, 3, 5.0))
sketch9.addConstraint(Sketcher.Constraint("DistanceX", -1, 1, 0, 3, 5.5))
pad4 = body3.newObject("PartDesign::Pad", "Pad003")
pad4.Profile = sketch9
pad4.Length = 2

sketch10 = body3.newObject("Sketcher::SketchObject", "Sketch009")
sketch10.AttachmentSupport = (doc.getObject("XZ_Plane002"), [""])
sketch10.MapMode = "FlatFace"
sketch10.AttachmentOffset = App.Placement(Vector(0, 0, -7), App.Rotation())
sketch10.addGeometry(Part.ArcOfCircle(Part.Circle(Vector(-12, 5, 0), Vector(0, 0, 1), 6.7), math.radians(-48), math.radians(228)), False)
sketch10.addGeometry(Part.LineSegment(Vector(-16.5, 0, 0), Vector(-7.5, 0, 0)), False)
sketch10.addGeometry(Part.Circle(Vector(-12, 5, 0), Vector(0, 0, 1), 4.8), False)
sketch10.addConstraint(Sketcher.Constraint("Coincident", 0, 1, 1, 2))
sketch10.addConstraint(Sketcher.Constraint("Coincident", 1, 1, 0, 2))
sketch10.addConstraint(Sketcher.Constraint("Horizontal", 1))
sketch10.addConstraint(Sketcher.Constraint("Coincident", 2, 3, 0, 3))
sketch10.addConstraint(Sketcher.Constraint("PointOnObject", 0, 1, -1))
sketch10.addConstraint(Sketcher.Constraint("Diameter", 2, 9.5))
sketch10.addConstraint(Sketcher.Constraint("Radius", 0, 6.75))
sketch10.addConstraint(Sketcher.Constraint("DistanceX", 0, 3, -1, 1, 12.0))
sketch10.addConstraint(Sketcher.Constraint("DistanceY", -1, 1, 0, 3, 5.0))
pad5 = body3.newObject("PartDesign::Pad", "Pad004")
pad5.Profile = sketch10
pad5.Length = 2

sketch11 = body3.newObject("Sketcher::SketchObject", "Sketch010")
sketch11.AttachmentSupport = (doc.getObject("XY_Plane002"), [""])
sketch11.MapMode = "FlatFace"
sketch11.addGeometry(Part.Circle(Vector(0, 0, 0), Vector(0, 0, 1), 6), False)
sketch11.addConstraint(Sketcher.Constraint("Coincident", 0, 3, -1, 1))
sketch11.addConstraint(Sketcher.Constraint("Diameter", 0, 12.5))
pocket6 = body3.newObject("PartDesign::Pocket", "Pocket005")
pocket6.Profile = sketch11
pocket6.Type = "ThroughAll"
pocket6.Reversed = True
doc.recompute()

fillet = body3.newObject("PartDesign::Fillet", "Fillet")
fillet.Base = (pocket6, edges_at(pocket6, [(8, -13, 0)]))
fillet.Radius = 1.5
doc.recompute()

fillet2 = body3.newObject("PartDesign::Fillet", "Fillet001")
fillet2.Base = (fillet, edges_at(fillet, [
    (-26, -20, -2),
    (20, -20, -2),
    (20, 20, 4),
    (-26, 20, -2),
    (20, 7, 6),
    (-20, 20, 6),
]))
fillet2.Radius = 3
doc.recompute()

fillet3 = body3.newObject("PartDesign::Fillet", "Fillet002")
fillet3.Base = (fillet2, edges_at(fillet2, [(-20, 7, 6)]))
fillet3.Radius = 1
doc.recompute()

boolean2 = body3.newObject("PartDesign::Boolean", "Boolean001")
boolean2.Type = "Fuse"
boolean2.addObjects([body2])
doc.recompute()

fillet4 = body3.newObject("PartDesign::Fillet", "Fillet003")
fillet4.Base = (boolean2, edges_at(boolean2, [(-4.5, 20, 4), (15.5, 20, 4)]))
fillet4.Radius = 1.49
doc.recompute()

fillet5 = body3.newObject("PartDesign::Fillet", "Fillet004")
fillet5.Base = (fillet4, edges_at(fillet4, [(-4.5, 45, 4), (15.5, 45, 4)]))
fillet5.Radius = 3

doc.recompute()
